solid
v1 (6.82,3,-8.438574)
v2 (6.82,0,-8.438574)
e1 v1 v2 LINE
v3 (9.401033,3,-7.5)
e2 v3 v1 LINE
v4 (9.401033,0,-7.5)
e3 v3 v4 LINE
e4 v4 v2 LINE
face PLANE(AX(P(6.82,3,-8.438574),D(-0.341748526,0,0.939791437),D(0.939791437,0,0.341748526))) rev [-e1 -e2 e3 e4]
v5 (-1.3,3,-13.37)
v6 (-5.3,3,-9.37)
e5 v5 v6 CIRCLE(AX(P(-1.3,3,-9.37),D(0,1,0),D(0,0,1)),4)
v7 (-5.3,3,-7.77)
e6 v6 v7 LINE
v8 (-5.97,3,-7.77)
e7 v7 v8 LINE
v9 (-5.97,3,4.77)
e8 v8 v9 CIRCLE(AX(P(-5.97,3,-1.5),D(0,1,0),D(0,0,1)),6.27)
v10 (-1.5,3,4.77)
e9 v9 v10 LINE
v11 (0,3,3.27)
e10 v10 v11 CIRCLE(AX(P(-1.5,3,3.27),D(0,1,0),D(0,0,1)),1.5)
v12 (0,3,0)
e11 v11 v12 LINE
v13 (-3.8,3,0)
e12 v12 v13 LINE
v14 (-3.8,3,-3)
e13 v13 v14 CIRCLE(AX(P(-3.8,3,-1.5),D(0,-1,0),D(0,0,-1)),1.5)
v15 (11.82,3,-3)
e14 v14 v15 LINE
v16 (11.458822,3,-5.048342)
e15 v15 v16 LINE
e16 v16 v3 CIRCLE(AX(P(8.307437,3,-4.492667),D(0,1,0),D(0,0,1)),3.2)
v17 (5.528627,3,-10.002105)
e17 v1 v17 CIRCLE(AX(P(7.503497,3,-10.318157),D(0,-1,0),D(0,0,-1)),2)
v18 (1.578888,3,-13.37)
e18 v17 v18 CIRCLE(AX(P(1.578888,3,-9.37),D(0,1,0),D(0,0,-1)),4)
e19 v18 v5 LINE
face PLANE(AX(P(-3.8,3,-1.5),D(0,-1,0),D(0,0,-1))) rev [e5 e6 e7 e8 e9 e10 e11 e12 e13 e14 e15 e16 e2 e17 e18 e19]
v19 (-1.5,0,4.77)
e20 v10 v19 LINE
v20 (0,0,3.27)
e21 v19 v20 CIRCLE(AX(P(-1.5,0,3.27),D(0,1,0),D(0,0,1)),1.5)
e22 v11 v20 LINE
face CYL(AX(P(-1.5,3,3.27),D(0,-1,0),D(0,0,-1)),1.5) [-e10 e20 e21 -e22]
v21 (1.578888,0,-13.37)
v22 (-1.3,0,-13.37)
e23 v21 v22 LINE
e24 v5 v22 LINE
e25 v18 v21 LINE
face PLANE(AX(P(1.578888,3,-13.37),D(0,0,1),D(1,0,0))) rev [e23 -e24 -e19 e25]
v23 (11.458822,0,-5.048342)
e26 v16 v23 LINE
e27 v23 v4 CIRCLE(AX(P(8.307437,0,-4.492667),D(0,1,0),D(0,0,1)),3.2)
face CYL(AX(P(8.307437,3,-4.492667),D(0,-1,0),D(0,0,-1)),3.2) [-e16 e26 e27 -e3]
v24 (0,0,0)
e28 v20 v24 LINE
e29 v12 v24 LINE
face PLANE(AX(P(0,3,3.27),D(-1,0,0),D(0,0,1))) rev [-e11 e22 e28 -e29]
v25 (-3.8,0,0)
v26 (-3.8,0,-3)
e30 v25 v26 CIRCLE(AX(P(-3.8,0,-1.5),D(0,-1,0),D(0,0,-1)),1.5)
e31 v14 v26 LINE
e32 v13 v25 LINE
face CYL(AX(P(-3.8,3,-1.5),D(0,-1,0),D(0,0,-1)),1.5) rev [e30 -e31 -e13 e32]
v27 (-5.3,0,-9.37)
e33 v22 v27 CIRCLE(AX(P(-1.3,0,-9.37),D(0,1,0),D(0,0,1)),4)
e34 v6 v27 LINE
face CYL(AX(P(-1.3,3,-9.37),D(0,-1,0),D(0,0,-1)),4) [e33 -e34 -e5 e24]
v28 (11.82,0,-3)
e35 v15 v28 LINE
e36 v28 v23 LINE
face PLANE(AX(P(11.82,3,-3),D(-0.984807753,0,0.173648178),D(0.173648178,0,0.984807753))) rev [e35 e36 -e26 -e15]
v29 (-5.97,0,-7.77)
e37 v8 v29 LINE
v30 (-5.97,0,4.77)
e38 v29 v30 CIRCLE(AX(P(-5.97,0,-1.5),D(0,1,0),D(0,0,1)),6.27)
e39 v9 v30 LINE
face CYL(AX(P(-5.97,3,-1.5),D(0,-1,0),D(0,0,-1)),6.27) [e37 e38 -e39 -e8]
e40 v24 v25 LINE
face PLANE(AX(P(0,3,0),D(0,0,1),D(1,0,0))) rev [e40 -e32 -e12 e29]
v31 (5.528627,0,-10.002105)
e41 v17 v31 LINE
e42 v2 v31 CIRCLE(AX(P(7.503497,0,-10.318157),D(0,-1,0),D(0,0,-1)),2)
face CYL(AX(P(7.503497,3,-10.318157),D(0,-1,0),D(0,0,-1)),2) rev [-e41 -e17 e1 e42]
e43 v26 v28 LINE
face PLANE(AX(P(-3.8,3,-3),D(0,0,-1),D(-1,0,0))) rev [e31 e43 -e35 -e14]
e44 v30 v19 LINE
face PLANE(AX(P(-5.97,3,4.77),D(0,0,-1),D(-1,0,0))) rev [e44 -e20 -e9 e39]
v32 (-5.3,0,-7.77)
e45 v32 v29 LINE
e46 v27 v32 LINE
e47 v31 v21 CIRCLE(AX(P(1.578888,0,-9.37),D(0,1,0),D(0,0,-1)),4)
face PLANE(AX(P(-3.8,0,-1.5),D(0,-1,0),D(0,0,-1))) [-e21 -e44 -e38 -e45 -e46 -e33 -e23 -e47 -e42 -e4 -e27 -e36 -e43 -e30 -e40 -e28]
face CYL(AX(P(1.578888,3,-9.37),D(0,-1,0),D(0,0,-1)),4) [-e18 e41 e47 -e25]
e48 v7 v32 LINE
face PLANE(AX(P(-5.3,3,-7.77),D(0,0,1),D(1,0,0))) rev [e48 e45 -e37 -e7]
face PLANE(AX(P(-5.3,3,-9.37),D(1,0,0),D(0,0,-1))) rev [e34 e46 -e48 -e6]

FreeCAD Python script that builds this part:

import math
import FreeCAD as App
import Part
import Sketcher
from FreeCAD import Vector
Q = App.Units.Quantity

doc = App.newDocument("Part")
body = doc.addObject("PartDesign::Body", "Body")

sketch1 = body.newObject("Sketcher::SketchObject", "Sketch")
sketch1.AttachmentSupport = (doc.getObject("XZ_Plane"), [""])
sketch1.MapMode = "FlatFace"
sketch1.addGeometry([
    Part.LineSegment(Vector(0, 0, 0), Vector(-3.8, 0, 0)),
    Part.ArcOfCircle(Part.Circle(Vector(-3.8, -1.5, 0), Vector(0, 0, 1), 1.5), math.radians(90), math.radians(270)),
    Part.LineSegment(Vector(-3.8, -3, 0), Vector(11.8, -3, 0)),
    Part.LineSegment(Vector(11.8, -3, 0), Vector(11.5, -5, 0)),
    Part.ArcOfCircle(Part.Circle(Vector(8.3, -4.5, 0), Vector(0, 0, 1), 3.2), math.radians(-70), math.radians(-10)),
    Part.LineSegment(Vector(9.4, -7.5, 0), Vector(6.8, -8.4, 0)),
    Part.ArcOfCircle(Part.Circle(Vector(7.5, -10.3, 0), Vector(0, 0, 1), 2), math.radians(110), math.radians(171)),
    Part.ArcOfCircle(Part.Circle(Vector(1.6, -9.4, 0), Vector(0, 0, 1), 4), math.radians(-90), math.radians(-9)),
    Part.LineSegment(Vector(1.6, -13.4, 0), Vector(-1.3, -13.4, 0)),
    Part.ArcOfCircle(Part.Circle(Vector(-1.3, -9.4, 0), Vector(0, 0, 1), 4), math.radians(180), math.radians(270)),
    Part.LineSegment(Vector(-5.3, -9.4, 0), Vector(-5.3, -7.8, 0)),
    Part.LineSegment(Vector(-5.3, -7.8, 0), Vector(-6, -7.8, 0)),
    Part.ArcOfCircle(Part.Circle(Vector(-6, -1.5, 0), Vector(0, 0, 1), 6.3), math.radians(90), math.radians(270)),
    Part.LineSegment(Vector(-6, 4.8, 0), Vector(-1.5, 4.8, 0)),
    Part.ArcOfCircle(Part.Circle(Vector(-1.5, 3.3, 0), Vector(0, 0, 1), 1.5), math.radians(0), math.radians(90)),
    Part.LineSegment(Vector(0, 3.3, 0), Vector(0, 0, 0)),
], False)
sketch1.addConstraint([
    Sketcher.Constraint("Tangent", 0, 2, 1, 1),
    Sketcher.Constraint("Tangent", 1, 2, 2, 1),
    Sketcher.Constraint("Coincident", 2, 2, 3, 1),
    Sketcher.Constraint("Tangent", 3, 2, 4, 2),
    Sketcher.Constraint("Tangent", 4, 1, 5, 1),
    Sketcher.Constraint("Tangent", 5, 2, 6, 1),
    Sketcher.Constraint("Tangent", 6, 2, 7, 2),
    Sketcher.Constraint("Tangent", 7, 1, 8, 1),
    Sketcher.Constraint("Tangent", 8, 2, 9, 2),
    Sketcher.Constraint("Tangent", 9, 1, 10, 1),
    Sketcher.Constraint("Coincident", 10, 2, 11, 1),
    Sketcher.Constraint("Tangent", 11, 2, 12, 2),
    Sketcher.Constraint("Tangent", 12, 1, 13, 1),
    Sketcher.Constraint("Tangent", 13, 2, 14, 2),
    Sketcher.Constraint("Tangent", 14, 1, 15, 1),
    Sketcher.Constraint("Coincident", 15, 2, 0, 1),
    Sketcher.Constraint("Horizontal", 0),
    Sketcher.Constraint("Horizontal", 2),
    Sketcher.Constraint("Horizontal", 8),
    Sketcher.Constraint("Vertical", 10),
    Sketcher.Constraint("Horizontal", 11),
    Sketcher.Constraint("Horizontal", 13),
    Sketcher.Constraint("Vertical", 15),
    Sketcher.Constraint("Coincident", 15, 2, -1, 1),
    Sketcher.Constraint("Equal", 7, 9),
    Sketcher.Constraint("Equal", 1, 14),
    Sketcher.Constraint("Horizontal", 1, 3, 12, 3),
    Sketcher.Constraint("Radius", 6, 2.0),
    Sketcher.Constraint("Radius", 7, 4.0),
    Sketcher.Constraint("Radius", 1, 1.5),
    Sketcher.Constraint("Radius", 4, 3.2),
    Sketcher.Constraint("Angle", 3, Q("-100 deg")),
    Sketcher.Constraint("Radius", 12, 6.27),
    Sketcher.Constraint("DistanceX", 0, 2, 0, 1, 3.8),
    Sketcher.Constraint("DistanceY", 10, 1, 10, 2, 1.6),
    Sketcher.Constraint("DistanceX", 2, 1, 2, 2, 15.62),
    Sketcher.Constraint("DistanceX", 11, 2, 11, 1, 0.67),
    Sketcher.Constraint("DistanceX", 13, 1, 13, 2, 4.47),
    Sketcher.Constraint("DistanceY", 4, 1, -1, 1, 7.5),
    Sketcher.Constraint("DistanceX", -1, 1, 5, 2, 6.82),
    Sketcher.Constraint("Distance", 3, 2.079941),
])
pad1 = body.newObject("PartDesign::Pad", "Pad")
pad1.Profile = sketch1
pad1.Length = 3
pad1.Reversed = True

doc.recompute()
